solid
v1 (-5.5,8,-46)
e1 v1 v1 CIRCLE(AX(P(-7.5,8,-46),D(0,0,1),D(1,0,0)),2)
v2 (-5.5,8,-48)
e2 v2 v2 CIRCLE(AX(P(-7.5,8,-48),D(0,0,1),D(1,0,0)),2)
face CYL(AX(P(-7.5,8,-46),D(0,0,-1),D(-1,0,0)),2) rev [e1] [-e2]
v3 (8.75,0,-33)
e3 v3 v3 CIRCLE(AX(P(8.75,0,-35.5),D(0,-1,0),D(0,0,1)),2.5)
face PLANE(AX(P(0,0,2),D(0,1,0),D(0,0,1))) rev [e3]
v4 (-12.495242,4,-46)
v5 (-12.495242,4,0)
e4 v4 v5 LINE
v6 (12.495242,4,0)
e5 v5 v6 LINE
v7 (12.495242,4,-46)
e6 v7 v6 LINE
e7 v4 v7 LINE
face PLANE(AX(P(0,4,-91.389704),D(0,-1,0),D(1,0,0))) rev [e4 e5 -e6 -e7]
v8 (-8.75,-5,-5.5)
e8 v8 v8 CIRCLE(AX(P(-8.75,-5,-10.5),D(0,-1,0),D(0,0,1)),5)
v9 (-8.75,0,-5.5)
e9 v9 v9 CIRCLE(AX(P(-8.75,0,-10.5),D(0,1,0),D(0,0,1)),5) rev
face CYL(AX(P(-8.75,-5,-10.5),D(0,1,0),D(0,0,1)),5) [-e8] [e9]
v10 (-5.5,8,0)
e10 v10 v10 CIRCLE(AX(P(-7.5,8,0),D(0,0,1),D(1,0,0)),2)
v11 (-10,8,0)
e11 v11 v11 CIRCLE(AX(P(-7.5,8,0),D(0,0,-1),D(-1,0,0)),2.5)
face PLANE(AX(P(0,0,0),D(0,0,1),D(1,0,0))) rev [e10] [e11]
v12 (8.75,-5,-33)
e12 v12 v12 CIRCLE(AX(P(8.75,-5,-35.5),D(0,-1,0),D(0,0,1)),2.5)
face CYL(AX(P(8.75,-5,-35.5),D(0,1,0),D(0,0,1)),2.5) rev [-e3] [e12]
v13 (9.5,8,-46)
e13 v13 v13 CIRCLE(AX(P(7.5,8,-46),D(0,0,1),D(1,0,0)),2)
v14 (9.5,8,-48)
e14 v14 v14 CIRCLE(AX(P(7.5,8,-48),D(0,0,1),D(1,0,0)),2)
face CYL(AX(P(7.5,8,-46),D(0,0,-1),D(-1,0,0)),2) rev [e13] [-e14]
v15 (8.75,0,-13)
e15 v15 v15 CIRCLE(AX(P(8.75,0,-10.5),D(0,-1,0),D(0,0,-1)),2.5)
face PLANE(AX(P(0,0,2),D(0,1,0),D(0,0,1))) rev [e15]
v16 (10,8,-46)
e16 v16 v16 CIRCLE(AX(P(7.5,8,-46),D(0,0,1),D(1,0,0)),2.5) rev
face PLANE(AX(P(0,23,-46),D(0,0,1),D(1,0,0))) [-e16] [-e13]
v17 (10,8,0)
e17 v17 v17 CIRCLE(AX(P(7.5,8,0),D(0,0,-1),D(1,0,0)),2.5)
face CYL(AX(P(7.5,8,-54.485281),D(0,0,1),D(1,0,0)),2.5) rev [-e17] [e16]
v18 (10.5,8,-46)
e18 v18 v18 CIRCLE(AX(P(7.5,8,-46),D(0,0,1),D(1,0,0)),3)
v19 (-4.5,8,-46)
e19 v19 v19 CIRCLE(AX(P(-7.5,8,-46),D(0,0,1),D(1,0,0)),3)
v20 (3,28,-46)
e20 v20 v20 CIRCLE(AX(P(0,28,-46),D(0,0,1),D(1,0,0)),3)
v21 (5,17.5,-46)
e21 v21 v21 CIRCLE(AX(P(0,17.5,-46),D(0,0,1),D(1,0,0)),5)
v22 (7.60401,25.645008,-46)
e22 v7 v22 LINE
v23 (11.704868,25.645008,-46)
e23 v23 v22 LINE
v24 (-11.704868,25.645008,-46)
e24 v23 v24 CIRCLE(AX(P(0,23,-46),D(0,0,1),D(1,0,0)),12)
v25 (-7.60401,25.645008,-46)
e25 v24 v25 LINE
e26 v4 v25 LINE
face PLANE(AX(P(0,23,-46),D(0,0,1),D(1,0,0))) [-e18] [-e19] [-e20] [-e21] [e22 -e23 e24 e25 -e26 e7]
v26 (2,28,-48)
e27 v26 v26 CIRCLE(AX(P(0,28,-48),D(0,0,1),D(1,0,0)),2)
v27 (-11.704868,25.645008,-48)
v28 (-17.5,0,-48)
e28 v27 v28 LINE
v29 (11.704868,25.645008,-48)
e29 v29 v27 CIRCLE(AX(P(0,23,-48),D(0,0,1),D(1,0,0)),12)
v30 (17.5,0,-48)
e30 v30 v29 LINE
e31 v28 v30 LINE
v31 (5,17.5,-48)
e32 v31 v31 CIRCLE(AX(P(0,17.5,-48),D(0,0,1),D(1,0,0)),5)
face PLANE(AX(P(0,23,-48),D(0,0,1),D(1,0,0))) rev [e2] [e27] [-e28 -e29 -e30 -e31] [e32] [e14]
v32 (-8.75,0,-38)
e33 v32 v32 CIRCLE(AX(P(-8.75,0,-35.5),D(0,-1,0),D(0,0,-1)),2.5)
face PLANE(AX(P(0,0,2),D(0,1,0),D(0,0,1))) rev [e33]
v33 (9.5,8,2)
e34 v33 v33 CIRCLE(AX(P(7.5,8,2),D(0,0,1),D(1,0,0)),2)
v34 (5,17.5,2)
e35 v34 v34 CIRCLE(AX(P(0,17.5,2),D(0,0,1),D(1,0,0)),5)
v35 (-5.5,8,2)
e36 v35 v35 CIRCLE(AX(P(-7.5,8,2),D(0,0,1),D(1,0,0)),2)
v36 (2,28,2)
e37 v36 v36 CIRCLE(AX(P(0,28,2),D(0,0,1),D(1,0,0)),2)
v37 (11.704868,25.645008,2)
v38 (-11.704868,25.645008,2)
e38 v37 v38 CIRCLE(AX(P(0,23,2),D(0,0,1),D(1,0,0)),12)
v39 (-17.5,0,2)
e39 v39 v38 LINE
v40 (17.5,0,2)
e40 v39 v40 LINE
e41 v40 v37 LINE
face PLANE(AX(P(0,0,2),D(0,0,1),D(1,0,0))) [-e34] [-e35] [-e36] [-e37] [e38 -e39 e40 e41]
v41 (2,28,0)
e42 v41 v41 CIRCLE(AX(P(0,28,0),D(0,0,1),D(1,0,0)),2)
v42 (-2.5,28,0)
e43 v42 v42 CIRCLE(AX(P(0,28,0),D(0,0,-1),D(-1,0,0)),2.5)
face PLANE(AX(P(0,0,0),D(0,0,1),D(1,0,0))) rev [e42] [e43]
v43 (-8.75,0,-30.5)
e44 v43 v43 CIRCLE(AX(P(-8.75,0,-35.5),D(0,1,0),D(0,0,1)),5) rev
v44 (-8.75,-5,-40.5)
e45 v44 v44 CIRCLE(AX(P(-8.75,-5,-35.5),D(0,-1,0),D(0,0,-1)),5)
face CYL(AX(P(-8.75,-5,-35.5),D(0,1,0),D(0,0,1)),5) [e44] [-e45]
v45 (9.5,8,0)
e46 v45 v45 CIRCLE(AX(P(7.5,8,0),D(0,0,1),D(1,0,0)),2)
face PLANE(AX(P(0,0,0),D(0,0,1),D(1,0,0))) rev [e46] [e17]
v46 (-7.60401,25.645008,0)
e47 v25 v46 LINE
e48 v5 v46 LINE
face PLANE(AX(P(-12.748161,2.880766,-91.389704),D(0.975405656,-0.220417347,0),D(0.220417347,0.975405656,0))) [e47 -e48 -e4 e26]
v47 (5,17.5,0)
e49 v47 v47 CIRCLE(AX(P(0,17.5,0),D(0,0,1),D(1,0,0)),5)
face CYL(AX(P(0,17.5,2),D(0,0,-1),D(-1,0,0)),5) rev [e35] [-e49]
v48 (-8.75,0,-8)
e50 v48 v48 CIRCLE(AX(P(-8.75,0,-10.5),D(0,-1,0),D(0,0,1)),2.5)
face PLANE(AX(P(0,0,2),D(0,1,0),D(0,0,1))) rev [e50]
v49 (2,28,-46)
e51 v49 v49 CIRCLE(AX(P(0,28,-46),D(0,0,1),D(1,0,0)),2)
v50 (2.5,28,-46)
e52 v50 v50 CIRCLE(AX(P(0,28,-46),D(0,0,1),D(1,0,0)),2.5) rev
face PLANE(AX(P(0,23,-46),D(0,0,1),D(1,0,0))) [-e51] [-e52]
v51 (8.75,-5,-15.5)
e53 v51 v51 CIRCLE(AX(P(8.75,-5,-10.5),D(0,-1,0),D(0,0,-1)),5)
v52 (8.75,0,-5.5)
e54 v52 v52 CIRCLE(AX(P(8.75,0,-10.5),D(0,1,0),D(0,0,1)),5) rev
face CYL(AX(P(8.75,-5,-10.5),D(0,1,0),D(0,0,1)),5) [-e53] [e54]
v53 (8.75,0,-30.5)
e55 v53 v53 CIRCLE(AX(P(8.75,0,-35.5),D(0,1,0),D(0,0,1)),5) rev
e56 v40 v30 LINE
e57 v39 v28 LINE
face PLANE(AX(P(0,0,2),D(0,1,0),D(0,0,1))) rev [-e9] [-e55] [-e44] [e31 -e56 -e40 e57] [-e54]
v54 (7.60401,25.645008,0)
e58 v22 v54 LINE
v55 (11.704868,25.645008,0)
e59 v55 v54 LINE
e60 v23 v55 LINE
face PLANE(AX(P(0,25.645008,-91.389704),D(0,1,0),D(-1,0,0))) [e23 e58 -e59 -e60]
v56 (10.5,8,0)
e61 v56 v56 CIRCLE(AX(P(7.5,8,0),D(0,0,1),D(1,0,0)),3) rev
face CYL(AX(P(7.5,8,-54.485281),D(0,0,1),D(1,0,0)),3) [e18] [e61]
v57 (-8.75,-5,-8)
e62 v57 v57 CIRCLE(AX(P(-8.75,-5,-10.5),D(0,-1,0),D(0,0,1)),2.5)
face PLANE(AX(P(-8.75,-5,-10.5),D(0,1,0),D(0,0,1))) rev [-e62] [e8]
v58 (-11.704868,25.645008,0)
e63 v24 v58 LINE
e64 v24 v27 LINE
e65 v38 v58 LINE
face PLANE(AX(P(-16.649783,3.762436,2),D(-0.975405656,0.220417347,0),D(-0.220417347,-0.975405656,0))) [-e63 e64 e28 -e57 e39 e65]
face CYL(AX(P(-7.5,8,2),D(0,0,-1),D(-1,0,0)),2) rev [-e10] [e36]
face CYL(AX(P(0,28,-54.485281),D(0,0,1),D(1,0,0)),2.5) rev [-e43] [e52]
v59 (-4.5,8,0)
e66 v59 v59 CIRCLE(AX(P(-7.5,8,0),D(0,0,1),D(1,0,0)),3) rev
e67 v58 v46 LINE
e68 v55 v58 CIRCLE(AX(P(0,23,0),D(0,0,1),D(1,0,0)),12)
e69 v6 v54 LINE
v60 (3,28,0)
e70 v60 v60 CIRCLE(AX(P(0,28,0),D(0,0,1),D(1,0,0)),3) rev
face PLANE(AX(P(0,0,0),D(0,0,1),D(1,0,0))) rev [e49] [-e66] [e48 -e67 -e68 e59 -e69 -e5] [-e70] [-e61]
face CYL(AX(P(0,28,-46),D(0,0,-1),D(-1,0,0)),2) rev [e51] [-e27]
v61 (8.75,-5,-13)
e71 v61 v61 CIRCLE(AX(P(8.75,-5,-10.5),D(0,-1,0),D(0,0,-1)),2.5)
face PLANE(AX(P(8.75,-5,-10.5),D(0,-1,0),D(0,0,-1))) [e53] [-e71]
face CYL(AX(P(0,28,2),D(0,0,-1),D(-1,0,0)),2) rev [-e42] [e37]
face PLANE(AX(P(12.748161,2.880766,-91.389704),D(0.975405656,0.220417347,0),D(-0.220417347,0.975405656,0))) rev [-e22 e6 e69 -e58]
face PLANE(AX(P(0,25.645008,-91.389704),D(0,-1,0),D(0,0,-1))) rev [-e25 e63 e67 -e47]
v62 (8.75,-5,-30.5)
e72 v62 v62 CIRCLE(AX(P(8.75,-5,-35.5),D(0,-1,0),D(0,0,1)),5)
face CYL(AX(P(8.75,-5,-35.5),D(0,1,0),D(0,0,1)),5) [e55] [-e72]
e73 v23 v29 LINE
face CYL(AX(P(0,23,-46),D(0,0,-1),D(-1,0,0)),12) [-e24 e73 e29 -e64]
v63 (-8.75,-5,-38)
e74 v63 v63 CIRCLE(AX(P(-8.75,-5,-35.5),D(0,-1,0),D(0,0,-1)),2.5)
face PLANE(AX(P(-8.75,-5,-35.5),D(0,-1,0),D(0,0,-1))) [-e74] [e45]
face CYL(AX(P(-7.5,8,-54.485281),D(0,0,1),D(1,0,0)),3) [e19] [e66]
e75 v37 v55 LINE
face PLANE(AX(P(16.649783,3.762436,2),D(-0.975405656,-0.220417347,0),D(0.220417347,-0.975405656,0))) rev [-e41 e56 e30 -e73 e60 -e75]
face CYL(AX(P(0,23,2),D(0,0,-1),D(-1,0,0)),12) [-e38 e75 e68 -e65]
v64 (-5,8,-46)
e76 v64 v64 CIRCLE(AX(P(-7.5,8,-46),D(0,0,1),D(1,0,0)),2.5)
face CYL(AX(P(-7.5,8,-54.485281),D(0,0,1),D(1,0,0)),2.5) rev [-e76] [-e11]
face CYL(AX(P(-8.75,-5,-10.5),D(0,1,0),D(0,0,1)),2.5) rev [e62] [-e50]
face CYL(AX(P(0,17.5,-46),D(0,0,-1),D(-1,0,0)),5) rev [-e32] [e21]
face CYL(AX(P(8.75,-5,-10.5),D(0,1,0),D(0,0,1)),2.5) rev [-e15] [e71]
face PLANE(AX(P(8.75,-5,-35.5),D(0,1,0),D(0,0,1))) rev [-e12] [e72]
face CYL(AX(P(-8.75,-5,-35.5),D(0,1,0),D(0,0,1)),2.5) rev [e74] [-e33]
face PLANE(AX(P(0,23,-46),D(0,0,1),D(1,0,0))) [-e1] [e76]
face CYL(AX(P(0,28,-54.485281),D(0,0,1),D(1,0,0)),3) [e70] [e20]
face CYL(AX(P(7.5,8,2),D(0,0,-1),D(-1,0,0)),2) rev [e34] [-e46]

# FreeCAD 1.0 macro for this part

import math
import FreeCAD as App
import Part
import Sketcher

V = App.Vector
Q = App.Units.Quantity


def add_polygon(sketch, points):
    """Adds a closed chain of lines whose ends are joined by coincident constraints."""
    first, n = sketch.GeometryCount, len(points)
    for a, b in zip(points, points[1:] + points[:1]):
        sketch.addGeometry(Part.LineSegment(App.Vector(*a, 0), App.Vector(*b, 0)), False)
    for i in range(n):
        sketch.addConstraint(Sketcher.Constraint("Coincident", first + i, 2, first + (i + 1) % n, 1))

doc = App.newDocument("Part")
body = doc.addObject("PartDesign::Body", "Body")

# Sketch on XY plane
sketch1 = body.newObject("Sketcher::SketchObject", "Sketch")
sketch1.AttachmentSupport = (doc.getObject("XY_Plane"), [""])
sketch1.MapMode = "FlatFace"
sketch1.addGeometry(Part.LineSegment(V(-17.5, 0, 0), V(17.5, 0, 0)), False)
sketch1.addGeometry(Part.LineSegment(V(17.5, 0, 0), V(11.704868, 25.645008, 0)), False)
sketch1.addGeometry(Part.ArcOfCircle(Part.Circle(V(0, 23, 0), V(0, 0, 1), 12), math.radians(12.733547), math.radians(167.266453)), False)
sketch1.addGeometry(Part.LineSegment(V(-11.704868, 25.645008, 0), V(-17.5, 0, 0)), False)
sketch1.addGeometry(Part.Circle(V(-7.5, 8, 0), V(0, 0, 1), 2), False)
sketch1.addGeometry(Part.Circle(V(7.5, 8, 0), V(0, 0, 1), 2), False)
sketch1.addGeometry(Part.Circle(V(0, 17.5, 0), V(0, 0, 1), 5), False)
sketch1.addGeometry(Part.Circle(V(0, 28, 0), V(0, 0, 1), 2), False)
sketch1.addConstraint(Sketcher.Constraint("Coincident", 0, 2, 1, 1))
sketch1.addConstraint(Sketcher.Constraint("Tangent", 1, 2, 2, 1))
sketch1.addConstraint(Sketcher.Constraint("Tangent", 2, 2, 3, 1))
sketch1.addConstraint(Sketcher.Constraint("Coincident", 3, 2, 0, 1))
sketch1.addConstraint(Sketcher.Constraint("Horizontal", 0))
sketch1.addConstraint(Sketcher.Constraint("Equal", 4, 5))
sketch1.addConstraint(Sketcher.Constraint("Equal", 5, 7))
sketch1.addConstraint(Sketcher.Constraint("Symmetric", 0, 2, 3, 2, -1, 1))
sketch1.addConstraint(Sketcher.Constraint("Symmetric", 4, 3, 5, 3, -2))
sketch1.addConstraint(Sketcher.Constraint("PointOnObject", 2, 3, -2))
sketch1.addConstraint(Sketcher.Constraint("PointOnObject", 6, 3, -2))
sketch1.addConstraint(Sketcher.Constraint("PointOnObject", 7, 3, -2))
sketch1.addConstraint(Sketcher.Constraint("Diameter", 4, Q("4 mm")))
sketch1.addConstraint(Sketcher.Constraint("Diameter", 6, Q("10 mm")))
sketch1.addConstraint(Sketcher.Constraint("Radius", 2, Q("12 mm")))
sketch1.addConstraint(Sketcher.Constraint("DistanceX", 0, 1, 0, 2, Q("35 mm")))
sketch1.addConstraint(Sketcher.Constraint("DistanceY", -1, 1, 2, 3, Q("23 mm")))
sketch1.addConstraint(Sketcher.Constraint("DistanceY", -1, 1, 4, 3, Q("8 mm")))
sketch1.addConstraint(Sketcher.Constraint("DistanceY", -1, 1, 7, 3, Q("28 mm")))
sketch1.addConstraint(Sketcher.Constraint("DistanceX", 4, 3, 5, 3, Q("15 mm")))
sketch1.addConstraint(Sketcher.Constraint("DistanceY", -1, 1, 6, 3, Q("17.5 mm")))
pad1 = body.newObject("PartDesign::Pad", "Pad")
pad1.Profile = sketch1
pad1.Length = 2
body2 = doc.addObject("PartDesign::Body", "Body001")

# Sketch on XY plane
sketch2 = body2.newObject("Sketcher::SketchObject", "Sketch001")
sketch2.AttachmentSupport = (doc.getObject("XY_Plane001"), [""])
sketch2.MapMode = "FlatFace"
sketch2.AttachmentOffset = App.Placement(V(0, 0, -48), App.Rotation())
sketch2.addGeometry(Part.LineSegment(V(17.5, 0, 0), V(11.704868, 25.645008, 0)), False)
sketch2.addGeometry(Part.ArcOfCircle(Part.Circle(V(0, 23, 0), V(0, 0, 1), 12), math.radians(12.733547), math.radians(167.266453)), False)
sketch2.addGeometry(Part.LineSegment(V(-11.704868, 25.645008, 0), V(-17.5, 0, 0)), False)
sketch2.addGeometry(Part.LineSegment(V(-17.5, 0, 0), V(17.5, 0, 0)), False)
sketch2.addGeometry(Part.Circle(V(-7.5, 8, 0), V(0, 0, 1), 2), False)
sketch2.addGeometry(Part.Circle(V(7.5, 8, 0), V(0, 0, 1), 2), False)
sketch2.addGeometry(Part.Circle(V(0, 17.5, 0), V(0, 0, 1), 5), False)
sketch2.addGeometry(Part.Circle(V(0, 28, 0), V(0, 0, 1), 2), False)
sketch2.addConstraint(Sketcher.Constraint("Tangent", 0, 2, 1, 1))
sketch2.addConstraint(Sketcher.Constraint("Tangent", 1, 2, 2, 1))
sketch2.addConstraint(Sketcher.Constraint("Coincident", 2, 2, 3, 1))
sketch2.addConstraint(Sketcher.Constraint("Coincident", 3, 2, 0, 1))
sketch2.addConstraint(Sketcher.Constraint("Horizontal", 3))
sketch2.addConstraint(Sketcher.Constraint("Equal", 4, 5))
sketch2.addConstraint(Sketcher.Constraint("Equal", 5, 7))
sketch2.addConstraint(Sketcher.Constraint("Symmetric", 2, 2, 3, 2, -1, 1))
sketch2.addConstraint(Sketcher.Constraint("Symmetric", 4, 3, 5, 3, -2))
sketch2.addConstraint(Sketcher.Constraint("PointOnObject", 1, 3, -2))
sketch2.addConstraint(Sketcher.Constraint("PointOnObject", 6, 3, -2))
sketch2.addConstraint(Sketcher.Constraint("PointOnObject", 7, 3, -2))
sketch2.addConstraint(Sketcher.Constraint("Diameter", 4, Q("4 mm")))
sketch2.addConstraint(Sketcher.Constraint("Diameter", 6, Q("10 mm")))
sketch2.addConstraint(Sketcher.Constraint("Radius", 1, Q("12 mm")))
sketch2.addConstraint(Sketcher.Constraint("DistanceX", 3, 1, 3, 2, Q("35 mm")))
sketch2.addConstraint(Sketcher.Constraint("DistanceY", -1, 1, 1, 3, Q("23 mm")))
sketch2.addConstraint(Sketcher.Constraint("DistanceY", -1, 1, 4, 3, Q("8 mm")))
sketch2.addConstraint(Sketcher.Constraint("DistanceY", -1, 1, 7, 3, Q("28 mm")))
sketch2.addConstraint(Sketcher.Constraint("DistanceX", 4, 3, 5, 3, Q("15 mm")))
sketch2.addConstraint(Sketcher.Constraint("DistanceY", -1, 1, 6, 3, Q("17.5 mm")))
pad2 = body2.newObject("PartDesign::Pad", "Pad001")
pad2.Profile = sketch2
pad2.Length = 2
body.AllowCompound = True
doc.recompute()

boolean = body.newObject("PartDesign::Boolean", "Boolean")
boolean.Type = "Fuse"
boolean.addObjects([body2])

# Sketch on XY plane
sketch3 = body.newObject("Sketcher::SketchObject", "Sketch002")
sketch3.AttachmentSupport = (doc.getObject("XY_Plane"), [""])
sketch3.MapMode = "FlatFace"
sketch3.addGeometry(Part.Circle(V(-7.5, 8, 0), V(0, 0, 1), 3), False)
sketch3.addGeometry(Part.Circle(V(-7.5, 8, 0), V(0, 0, 1), 2.5), False)
sketch3.addGeometry(Part.Circle(V(0, 28, 0), V(0, 0, 1), 3), False)
sketch3.addGeometry(Part.Circle(V(0, 28, 0), V(0, 0, 1), 2.5), False)
sketch3.addGeometry(Part.Circle(V(7.5, 8, 0), V(0, 0, 1), 3), False)
sketch3.addGeometry(Part.Circle(V(7.5, 8, 0), V(0, 0, 1), 2.5), False)
sketch3.addConstraint(Sketcher.Constraint("Coincident", 1, 3, 0, 3))
sketch3.addConstraint(Sketcher.Constraint("Coincident", 3, 3, 2, 3))
sketch3.addConstraint(Sketcher.Constraint("Coincident", 5, 3, 4, 3))
sketch3.addConstraint(Sketcher.Constraint("Equal", 0, 2))
sketch3.addConstraint(Sketcher.Constraint("Equal", 1, 3))
sketch3.addConstraint(Sketcher.Constraint("Equal", 2, 4))
sketch3.addConstraint(Sketcher.Constraint("Equal", 3, 5))
sketch3.addConstraint(Sketcher.Constraint("Symmetric", 0, 3, 4, 3, -2))
sketch3.addConstraint(Sketcher.Constraint("PointOnObject", 2, 3, -2))
sketch3.addConstraint(Sketcher.Constraint("Diameter", 0, Q("6 mm")))
sketch3.addConstraint(Sketcher.Constraint("Diameter", 1, Q("5 mm")))
sketch3.addConstraint(Sketcher.Constraint("DistanceY", -1, 1, 0, 3, Q("8 mm")))
sketch3.addConstraint(Sketcher.Constraint("DistanceY", -1, 1, 2, 3, Q("28 mm")))
sketch3.addConstraint(Sketcher.Constraint("DistanceX", 0, 3, 4, 3, Q("15 mm")))
pad3 = body.newObject("PartDesign::Pad", "Pad002")
pad3.Profile = sketch3
pad3.Length = 46
pad3.Reversed = True

# Sketch on XY plane
sketch4 = body.newObject("Sketcher::SketchObject", "Sketch003")
sketch4.AttachmentSupport = (doc.getObject("XY_Plane"), [""])
sketch4.MapMode = "FlatFace"
add_polygon(sketch4, [(-12.495242, 4), (-16.5961, 4), (-11.704868, 25.645008), (-7.60401, 25.645008)])  # lines 0-3
sketch4.addConstraint(Sketcher.Constraint("Horizontal", 0))
sketch4.addConstraint(Sketcher.Constraint("Horizontal", 2))
sketch4.addConstraint(Sketcher.Constraint("Parallel", 1, 3))
sketch4.addConstraint(Sketcher.Constraint("DistanceY", -1, 1, 0, 2, Q("4 mm")))
sketch4.addConstraint(Sketcher.Constraint("DistanceX", 0, 2, -1, 1, Q("16.5961 mm")))
sketch4.addConstraint(Sketcher.Constraint("DistanceX", 0, 2, 0, 1, Q("4.100858 mm")))
sketch4.addConstraint(Sketcher.Constraint("DistanceY", -1, 1, 1, 2, Q("25.645008 mm")))
sketch4.addConstraint(Sketcher.Constraint("DistanceX", 2, 2, -1, 1, Q("7.60401 mm")))
pad4 = body.newObject("PartDesign::Pad", "Pad003")
pad4.Profile = sketch4
pad4.Type = "UpToFirst"
pad4.Reversed = True

# Sketch on XY plane
sketch5 = body.newObject("Sketcher::SketchObject", "Sketch004")
sketch5.AttachmentSupport = (doc.getObject("XY_Plane"), [""])
sketch5.MapMode = "FlatFace"
add_polygon(sketch5, [(16.5961, 4), (12.495242, 4), (7.60401, 25.645008), (11.704868, 25.645008)])  # lines 0-3
sketch5.addConstraint(Sketcher.Constraint("Horizontal", 0))
sketch5.addConstraint(Sketcher.Constraint("Horizontal", 2))
sketch5.addConstraint(Sketcher.Constraint("Parallel", 1, 3))
sketch5.addConstraint(Sketcher.Constraint("DistanceY", -1, 1, 0, 2, Q("4 mm")))
sketch5.addConstraint(Sketcher.Constraint("DistanceX", -1, 1, 3, 2, Q("16.5961 mm")))
sketch5.addConstraint(Sketcher.Constraint("DistanceX", 0, 2, 0, 1, Q("4.100858 mm")))
sketch5.addConstraint(Sketcher.Constraint("DistanceX", -1, 1, 1, 2, Q("7.60401 mm")))
sketch5.addConstraint(Sketcher.Constraint("DistanceY", -1, 1, 1, 2, Q("25.645008 mm")))
pad5 = body.newObject("PartDesign::Pad", "Pad004")
pad5.Profile = sketch5
pad5.Type = "UpToFirst"
pad5.Reversed = True

# Sketch on XY plane
sketch6 = body.newObject("Sketcher::SketchObject", "Sketch005")
sketch6.AttachmentSupport = (doc.getObject("XY_Plane"), [""])
sketch6.MapMode = "FlatFace"
add_polygon(sketch6, [(-17.5, 0), (-16.5961, 4), (16.5961, 4), (17.5, 0)])  # lines 0-3
sketch6.addConstraint(Sketcher.Constraint("Horizontal", 1))
sketch6.addConstraint(Sketcher.Constraint("Horizontal", 3))
sketch6.addConstraint(Sketcher.Constraint("Symmetric", 2, 2, 3, 2, -1, 1))
sketch6.addConstraint(Sketcher.Constraint("Equal", 0, 2))
sketch6.addConstraint(Sketcher.Constraint("DistanceX", 3, 2, 3, 1, Q("35 mm")))
sketch6.addConstraint(Sketcher.Constraint("DistanceY", -1, 1, 0, 2, Q("4 mm")))
sketch6.addConstraint(Sketcher.Constraint("DistanceX", 1, 1, 1, 2, Q("33.1922 mm")))
pad6 = body.newObject("PartDesign::Pad", "Pad005")
pad6.Profile = sketch6
pad6.Type = "UpToFirst"
pad6.Reversed = True

# Sketch on XZ plane
sketch7 = body.newObject("Sketcher::SketchObject", "Sketch006")
sketch7.AttachmentSupport = (doc.getObject("XZ_Plane"), [""])
sketch7.MapMode = "FlatFace"
sketch7.addGeometry(Part.Circle(V(8.75, -10.5, 0), V(0, 0, 1), 5), False)
sketch7.addGeometry(Part.Circle(V(8.75, -10.5, 0), V(0, 0, 1), 2.5), False)
sketch7.addGeometry(Part.Circle(V(8.75, -35.5, 0), V(0, 0, 1), 5), False)
sketch7.addGeometry(Part.Circle(V(8.75, -35.5, 0), V(0, 0, 1), 2.5), False)
sketch7.addGeometry(Part.Circle(V(-8.75, -35.5, 0), V(0, 0, 1), 5), False)
sketch7.addGeometry(Part.Circle(V(-8.75, -35.5, 0), V(0, 0, 1), 2.5), False)
sketch7.addGeometry(Part.Circle(V(-8.75, -10.5, 0), V(0, 0, 1), 5), False)
sketch7.addGeometry(Part.Circle(V(-8.75, -10.5, 0), V(0, 0, 1), 2.5), False)
sketch7.addConstraint(Sketcher.Constraint("Coincident", 1, 3, 0, 3))
sketch7.addConstraint(Sketcher.Constraint("Coincident", 3, 3, 2, 3))
sketch7.addConstraint(Sketcher.Constraint("Coincident", 5, 3, 4, 3))
sketch7.addConstraint(Sketcher.Constraint("Coincident", 7, 3, 6, 3))
sketch7.addConstraint(Sketcher.Constraint("Equal", 0, 2))
sketch7.addConstraint(Sketcher.Constraint("Equal", 1, 3))
sketch7.addConstraint(Sketcher.Constraint("Equal", 2, 4))
sketch7.addConstraint(Sketcher.Constraint("Equal", 3, 5))
sketch7.addConstraint(Sketcher.Constraint("Equal", 4, 6))
sketch7.addConstraint(Sketcher.Constraint("Equal", 5, 7))
sketch7.addConstraint(Sketcher.Constraint("Symmetric", 2, 3, 4, 3, -2))
sketch7.addConstraint(Sketcher.Constraint("Symmetric", 0, 3, 6, 3, -2))
sketch7.addConstraint(Sketcher.Constraint("Vertical", 1, 3, 2, 3))
sketch7.addConstraint(Sketcher.Constraint("Diameter", 0, Q("10 mm")))
sketch7.addConstraint(Sketcher.Constraint("Diameter", 1, Q("5 mm")))
sketch7.addConstraint(Sketcher.Constraint("DistanceY", 2, 3, 0, 3, Q("25 mm")))
sketch7.addConstraint(Sketcher.Constraint("DistanceY", 0, 3, -1, 1, Q("10.5 mm")))
sketch7.addConstraint(Sketcher.Constraint("DistanceX", 4, 3, 2, 3, Q("17.5 mm")))
pad7 = body.newObject("PartDesign::Pad", "Pad006")
pad7.Profile = sketch7
pad7.Length = 5

doc.recompute()
